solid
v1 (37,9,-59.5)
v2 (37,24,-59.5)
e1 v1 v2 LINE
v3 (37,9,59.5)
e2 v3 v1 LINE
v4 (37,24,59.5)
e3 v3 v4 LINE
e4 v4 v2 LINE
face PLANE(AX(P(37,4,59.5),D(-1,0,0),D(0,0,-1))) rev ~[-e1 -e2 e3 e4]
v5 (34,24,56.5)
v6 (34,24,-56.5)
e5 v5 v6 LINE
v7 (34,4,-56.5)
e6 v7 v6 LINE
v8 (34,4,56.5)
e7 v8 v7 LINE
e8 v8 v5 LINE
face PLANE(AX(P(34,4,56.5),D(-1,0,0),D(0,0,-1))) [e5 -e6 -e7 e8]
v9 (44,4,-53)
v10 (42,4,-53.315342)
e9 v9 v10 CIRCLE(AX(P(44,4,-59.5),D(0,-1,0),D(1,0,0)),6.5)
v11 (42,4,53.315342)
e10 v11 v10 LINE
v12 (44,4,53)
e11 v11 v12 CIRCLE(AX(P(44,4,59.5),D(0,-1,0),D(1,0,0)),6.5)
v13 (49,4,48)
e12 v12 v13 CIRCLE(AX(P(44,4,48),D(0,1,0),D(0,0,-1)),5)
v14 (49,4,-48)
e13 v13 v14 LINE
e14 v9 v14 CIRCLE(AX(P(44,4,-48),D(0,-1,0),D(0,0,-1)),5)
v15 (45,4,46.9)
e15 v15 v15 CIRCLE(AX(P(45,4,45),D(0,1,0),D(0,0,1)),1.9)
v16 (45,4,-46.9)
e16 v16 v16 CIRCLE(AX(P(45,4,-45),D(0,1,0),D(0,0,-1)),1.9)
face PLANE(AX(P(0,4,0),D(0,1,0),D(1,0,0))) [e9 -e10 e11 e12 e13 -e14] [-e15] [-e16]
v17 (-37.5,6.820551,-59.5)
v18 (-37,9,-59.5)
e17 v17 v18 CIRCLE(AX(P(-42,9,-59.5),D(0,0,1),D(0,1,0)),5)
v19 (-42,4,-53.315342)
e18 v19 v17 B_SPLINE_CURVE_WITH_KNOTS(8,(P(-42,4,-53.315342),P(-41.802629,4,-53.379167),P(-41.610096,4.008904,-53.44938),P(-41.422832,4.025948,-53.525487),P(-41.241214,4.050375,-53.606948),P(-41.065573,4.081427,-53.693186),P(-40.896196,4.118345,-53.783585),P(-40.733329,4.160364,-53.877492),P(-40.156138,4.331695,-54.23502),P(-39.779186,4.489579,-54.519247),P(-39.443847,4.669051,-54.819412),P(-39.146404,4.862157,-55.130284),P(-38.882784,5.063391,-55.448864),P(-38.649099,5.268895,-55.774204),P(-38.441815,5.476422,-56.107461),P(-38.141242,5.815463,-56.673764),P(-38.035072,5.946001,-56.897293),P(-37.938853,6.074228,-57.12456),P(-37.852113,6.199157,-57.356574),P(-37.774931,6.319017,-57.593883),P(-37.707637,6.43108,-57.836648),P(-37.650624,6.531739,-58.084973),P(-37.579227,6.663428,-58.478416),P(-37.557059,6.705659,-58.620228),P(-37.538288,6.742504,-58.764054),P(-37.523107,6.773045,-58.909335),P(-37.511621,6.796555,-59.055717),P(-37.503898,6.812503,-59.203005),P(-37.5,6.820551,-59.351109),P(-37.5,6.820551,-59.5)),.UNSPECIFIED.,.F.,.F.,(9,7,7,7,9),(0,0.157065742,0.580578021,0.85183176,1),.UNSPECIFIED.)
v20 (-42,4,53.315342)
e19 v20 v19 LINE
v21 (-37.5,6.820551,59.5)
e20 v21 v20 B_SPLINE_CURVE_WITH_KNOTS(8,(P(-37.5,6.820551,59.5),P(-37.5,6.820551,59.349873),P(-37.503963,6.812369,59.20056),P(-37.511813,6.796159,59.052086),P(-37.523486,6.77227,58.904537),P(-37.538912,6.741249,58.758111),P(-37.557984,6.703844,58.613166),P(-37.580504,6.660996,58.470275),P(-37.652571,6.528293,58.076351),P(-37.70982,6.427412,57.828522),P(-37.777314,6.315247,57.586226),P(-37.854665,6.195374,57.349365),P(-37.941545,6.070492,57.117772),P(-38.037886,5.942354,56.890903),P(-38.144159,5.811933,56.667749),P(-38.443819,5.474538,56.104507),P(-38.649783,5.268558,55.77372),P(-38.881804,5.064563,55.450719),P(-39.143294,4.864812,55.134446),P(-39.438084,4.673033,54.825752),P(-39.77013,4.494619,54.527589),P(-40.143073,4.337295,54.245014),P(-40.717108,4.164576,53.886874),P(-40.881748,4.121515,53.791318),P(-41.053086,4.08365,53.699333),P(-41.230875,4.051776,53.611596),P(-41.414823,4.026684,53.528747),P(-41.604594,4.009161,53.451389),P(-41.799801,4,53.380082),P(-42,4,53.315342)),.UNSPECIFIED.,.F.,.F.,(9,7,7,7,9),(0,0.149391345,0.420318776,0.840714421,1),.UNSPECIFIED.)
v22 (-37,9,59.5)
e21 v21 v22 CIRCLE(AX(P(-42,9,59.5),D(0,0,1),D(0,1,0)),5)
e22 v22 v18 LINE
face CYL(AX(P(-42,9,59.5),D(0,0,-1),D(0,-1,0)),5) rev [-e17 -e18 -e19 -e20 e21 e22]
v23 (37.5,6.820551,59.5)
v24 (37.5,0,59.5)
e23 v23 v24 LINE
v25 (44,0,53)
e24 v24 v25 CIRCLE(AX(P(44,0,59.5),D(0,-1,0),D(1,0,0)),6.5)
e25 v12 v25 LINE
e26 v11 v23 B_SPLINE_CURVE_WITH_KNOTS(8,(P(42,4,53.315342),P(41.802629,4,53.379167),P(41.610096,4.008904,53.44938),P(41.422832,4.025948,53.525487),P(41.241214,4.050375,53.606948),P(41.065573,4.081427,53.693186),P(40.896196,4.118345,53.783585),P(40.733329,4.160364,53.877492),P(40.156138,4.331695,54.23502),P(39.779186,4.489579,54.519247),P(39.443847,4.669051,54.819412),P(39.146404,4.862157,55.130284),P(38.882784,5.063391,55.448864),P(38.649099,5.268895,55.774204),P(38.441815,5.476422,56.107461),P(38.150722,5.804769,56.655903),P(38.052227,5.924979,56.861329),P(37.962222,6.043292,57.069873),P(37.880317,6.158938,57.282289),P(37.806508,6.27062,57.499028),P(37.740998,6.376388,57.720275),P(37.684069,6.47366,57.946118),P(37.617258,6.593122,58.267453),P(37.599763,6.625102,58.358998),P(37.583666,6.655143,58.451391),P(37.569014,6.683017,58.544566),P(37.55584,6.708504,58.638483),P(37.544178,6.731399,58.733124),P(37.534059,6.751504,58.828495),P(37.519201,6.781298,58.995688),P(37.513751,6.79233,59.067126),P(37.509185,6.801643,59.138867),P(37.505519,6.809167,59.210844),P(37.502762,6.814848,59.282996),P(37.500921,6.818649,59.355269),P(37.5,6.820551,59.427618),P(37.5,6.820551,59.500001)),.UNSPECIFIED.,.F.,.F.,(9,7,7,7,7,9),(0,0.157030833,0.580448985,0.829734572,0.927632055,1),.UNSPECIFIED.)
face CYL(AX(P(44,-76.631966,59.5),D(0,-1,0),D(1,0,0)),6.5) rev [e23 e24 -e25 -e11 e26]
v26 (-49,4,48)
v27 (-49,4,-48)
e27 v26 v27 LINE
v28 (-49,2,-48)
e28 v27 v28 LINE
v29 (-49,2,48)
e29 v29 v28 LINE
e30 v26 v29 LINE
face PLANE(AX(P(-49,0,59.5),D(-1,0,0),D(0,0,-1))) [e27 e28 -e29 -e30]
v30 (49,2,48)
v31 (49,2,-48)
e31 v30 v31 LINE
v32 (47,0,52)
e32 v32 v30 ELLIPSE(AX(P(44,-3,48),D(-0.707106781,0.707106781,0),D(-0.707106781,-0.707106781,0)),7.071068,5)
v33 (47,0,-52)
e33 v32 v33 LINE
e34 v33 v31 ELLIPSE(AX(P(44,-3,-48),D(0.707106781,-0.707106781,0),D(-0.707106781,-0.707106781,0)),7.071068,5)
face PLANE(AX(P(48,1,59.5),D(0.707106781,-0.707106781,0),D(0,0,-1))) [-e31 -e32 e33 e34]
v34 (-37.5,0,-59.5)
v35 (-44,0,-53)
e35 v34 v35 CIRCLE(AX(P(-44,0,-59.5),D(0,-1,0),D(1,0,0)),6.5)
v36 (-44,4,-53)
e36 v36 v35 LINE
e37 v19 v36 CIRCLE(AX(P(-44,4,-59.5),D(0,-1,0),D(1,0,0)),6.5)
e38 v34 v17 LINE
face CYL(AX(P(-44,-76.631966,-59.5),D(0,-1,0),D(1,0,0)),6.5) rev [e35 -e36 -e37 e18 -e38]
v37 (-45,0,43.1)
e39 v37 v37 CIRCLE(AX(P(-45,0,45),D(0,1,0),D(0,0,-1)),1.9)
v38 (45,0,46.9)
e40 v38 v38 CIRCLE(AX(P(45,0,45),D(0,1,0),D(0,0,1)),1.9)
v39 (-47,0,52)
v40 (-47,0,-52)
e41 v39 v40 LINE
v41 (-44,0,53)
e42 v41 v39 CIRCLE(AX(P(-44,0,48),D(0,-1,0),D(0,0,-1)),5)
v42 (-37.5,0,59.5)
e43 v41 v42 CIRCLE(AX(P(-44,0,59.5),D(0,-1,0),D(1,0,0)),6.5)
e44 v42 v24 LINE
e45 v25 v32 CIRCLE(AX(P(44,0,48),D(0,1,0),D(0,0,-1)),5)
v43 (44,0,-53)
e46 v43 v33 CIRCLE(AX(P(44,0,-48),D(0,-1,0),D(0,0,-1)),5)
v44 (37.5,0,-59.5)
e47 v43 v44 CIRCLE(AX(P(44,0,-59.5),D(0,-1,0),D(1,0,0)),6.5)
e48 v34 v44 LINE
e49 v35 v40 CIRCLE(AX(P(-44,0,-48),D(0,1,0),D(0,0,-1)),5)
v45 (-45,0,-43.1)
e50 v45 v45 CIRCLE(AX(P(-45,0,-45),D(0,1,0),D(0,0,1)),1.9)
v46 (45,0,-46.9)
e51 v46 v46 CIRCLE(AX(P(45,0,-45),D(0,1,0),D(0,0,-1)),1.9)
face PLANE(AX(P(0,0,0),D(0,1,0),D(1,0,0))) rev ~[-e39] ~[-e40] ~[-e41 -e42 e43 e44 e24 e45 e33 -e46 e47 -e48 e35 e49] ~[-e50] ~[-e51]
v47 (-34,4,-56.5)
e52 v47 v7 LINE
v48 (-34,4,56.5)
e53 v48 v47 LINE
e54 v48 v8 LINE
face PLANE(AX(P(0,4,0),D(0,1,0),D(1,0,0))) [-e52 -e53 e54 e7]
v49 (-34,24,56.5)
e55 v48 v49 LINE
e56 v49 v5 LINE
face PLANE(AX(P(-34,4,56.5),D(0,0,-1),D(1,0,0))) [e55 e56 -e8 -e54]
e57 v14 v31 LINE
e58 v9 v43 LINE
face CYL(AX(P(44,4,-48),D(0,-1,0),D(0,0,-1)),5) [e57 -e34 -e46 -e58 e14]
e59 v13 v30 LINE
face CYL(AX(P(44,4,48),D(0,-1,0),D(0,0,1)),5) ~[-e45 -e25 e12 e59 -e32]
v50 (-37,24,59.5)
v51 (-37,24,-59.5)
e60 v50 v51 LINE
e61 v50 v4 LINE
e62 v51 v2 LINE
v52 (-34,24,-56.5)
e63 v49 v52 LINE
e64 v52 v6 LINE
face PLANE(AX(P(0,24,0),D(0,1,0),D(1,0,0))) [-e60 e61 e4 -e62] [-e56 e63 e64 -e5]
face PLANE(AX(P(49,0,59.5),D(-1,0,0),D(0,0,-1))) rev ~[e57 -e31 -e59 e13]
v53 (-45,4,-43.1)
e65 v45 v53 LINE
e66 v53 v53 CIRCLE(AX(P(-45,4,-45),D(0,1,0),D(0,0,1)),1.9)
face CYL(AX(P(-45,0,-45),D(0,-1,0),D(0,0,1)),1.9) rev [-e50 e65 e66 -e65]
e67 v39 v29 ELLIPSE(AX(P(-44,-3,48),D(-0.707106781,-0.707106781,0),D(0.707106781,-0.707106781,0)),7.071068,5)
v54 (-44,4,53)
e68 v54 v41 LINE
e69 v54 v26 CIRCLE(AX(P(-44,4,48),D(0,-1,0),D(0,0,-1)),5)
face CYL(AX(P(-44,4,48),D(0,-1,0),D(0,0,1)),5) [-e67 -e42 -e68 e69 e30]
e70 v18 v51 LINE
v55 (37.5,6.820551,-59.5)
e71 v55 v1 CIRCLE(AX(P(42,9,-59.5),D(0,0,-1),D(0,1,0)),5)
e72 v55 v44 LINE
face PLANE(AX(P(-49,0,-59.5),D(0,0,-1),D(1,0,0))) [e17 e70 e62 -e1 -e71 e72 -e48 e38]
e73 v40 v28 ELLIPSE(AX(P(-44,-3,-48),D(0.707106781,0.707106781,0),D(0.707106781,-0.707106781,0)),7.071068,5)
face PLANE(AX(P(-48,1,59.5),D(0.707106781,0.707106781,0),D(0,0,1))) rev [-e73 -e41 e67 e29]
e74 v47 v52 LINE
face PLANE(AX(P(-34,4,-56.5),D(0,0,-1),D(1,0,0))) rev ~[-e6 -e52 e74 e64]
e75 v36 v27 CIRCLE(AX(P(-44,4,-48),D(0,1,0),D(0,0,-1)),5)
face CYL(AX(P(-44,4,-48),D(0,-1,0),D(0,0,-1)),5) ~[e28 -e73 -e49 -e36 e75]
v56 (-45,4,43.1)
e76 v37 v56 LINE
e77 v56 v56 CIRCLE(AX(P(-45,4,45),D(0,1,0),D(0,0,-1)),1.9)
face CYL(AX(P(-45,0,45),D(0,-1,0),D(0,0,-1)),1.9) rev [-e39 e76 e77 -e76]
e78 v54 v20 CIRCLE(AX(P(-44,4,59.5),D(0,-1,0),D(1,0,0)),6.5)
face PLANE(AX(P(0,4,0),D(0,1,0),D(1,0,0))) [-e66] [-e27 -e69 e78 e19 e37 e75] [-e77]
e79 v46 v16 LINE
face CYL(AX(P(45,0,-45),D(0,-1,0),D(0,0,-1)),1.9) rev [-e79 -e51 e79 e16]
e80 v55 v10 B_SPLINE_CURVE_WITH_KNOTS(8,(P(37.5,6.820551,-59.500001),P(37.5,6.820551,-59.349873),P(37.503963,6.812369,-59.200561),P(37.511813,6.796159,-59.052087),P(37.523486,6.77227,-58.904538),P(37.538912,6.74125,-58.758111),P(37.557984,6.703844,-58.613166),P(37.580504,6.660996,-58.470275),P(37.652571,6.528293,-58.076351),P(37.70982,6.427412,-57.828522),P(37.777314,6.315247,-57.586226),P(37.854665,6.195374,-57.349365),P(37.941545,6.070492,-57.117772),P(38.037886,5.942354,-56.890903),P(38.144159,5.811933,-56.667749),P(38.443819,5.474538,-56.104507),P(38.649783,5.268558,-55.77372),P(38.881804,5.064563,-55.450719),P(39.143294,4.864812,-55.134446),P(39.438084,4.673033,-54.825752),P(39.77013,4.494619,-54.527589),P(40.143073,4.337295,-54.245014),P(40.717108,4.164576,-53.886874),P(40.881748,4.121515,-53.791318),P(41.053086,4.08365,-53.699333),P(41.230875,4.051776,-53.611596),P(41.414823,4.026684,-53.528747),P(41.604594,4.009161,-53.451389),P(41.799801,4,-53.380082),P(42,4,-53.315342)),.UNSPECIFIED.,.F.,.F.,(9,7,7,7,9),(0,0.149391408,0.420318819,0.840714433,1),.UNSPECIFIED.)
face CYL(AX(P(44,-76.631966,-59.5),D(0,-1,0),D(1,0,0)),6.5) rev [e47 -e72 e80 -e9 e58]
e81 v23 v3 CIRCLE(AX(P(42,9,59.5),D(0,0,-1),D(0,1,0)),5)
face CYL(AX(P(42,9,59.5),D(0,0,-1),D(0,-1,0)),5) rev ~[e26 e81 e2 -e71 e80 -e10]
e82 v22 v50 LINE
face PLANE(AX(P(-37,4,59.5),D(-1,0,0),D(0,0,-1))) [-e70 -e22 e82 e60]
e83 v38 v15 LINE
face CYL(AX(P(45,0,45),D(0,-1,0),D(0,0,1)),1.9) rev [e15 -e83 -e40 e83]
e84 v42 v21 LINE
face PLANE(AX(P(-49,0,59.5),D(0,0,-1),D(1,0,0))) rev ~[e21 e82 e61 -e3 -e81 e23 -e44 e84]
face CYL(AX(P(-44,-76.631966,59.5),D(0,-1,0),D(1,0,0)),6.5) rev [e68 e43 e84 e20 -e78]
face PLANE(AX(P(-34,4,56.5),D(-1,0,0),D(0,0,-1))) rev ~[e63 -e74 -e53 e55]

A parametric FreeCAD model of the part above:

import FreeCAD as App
import Part
import Sketcher
from FreeCAD import Vector
Q = App.Units.Quantity


def edges_at(feature, points):
    """Names of the edges that pass closest to the given points."""
    edges = feature.Shape.Edges
    near = lambda p: min(range(len(edges)), key=lambda i: edges[i].distToShape(Part.Vertex(*p))[0])
    return sorted({f"Edge{near(p) + 1}" for p in points})


def add_polygon(sketch, points):
    """Adds a closed chain of lines whose ends are joined by coincident constraints."""
    first, n = sketch.GeometryCount, len(points)
    for a, b in zip(points, points[1:] + points[:1]):
        sketch.addGeometry(Part.LineSegment(App.Vector(*a, 0), App.Vector(*b, 0)), False)
    for i in range(n):
        sketch.addConstraint(Sketcher.Constraint("Coincident", first + i, 2, first + (i + 1) % n, 1))

doc = App.newDocument("Part")
params = doc.addObject("Spreadsheet::Sheet", "Params")
for row, (alias, value) in enumerate([
    ("sketch1_diameter", "3.8 mm"),
    ("sketch1_width", "98 mm"),
    ("sketch1_height", "119 mm"),
    ("pad1_length", "4 mm"),
    ("sketch2_width", "74 mm"),
    ("sketch2_width2", "68 mm"),
    ("sketch2_height", "119 mm"),
    ("sketch2_height2", "113 mm"),
    ("pad2_length", "20 mm"),
    ("fillet_radius", "5 mm"),
    ("chamfer_size", "2 mm"),
    ("sketch3_diameter", "13 mm"),
    ("fillet2_radius", "5 mm"),
], start=1):
    params.set(f"A{row}", alias)
    params.set(f"B{row}", "=" + value)
    params.setAlias(f"B{row}", alias)

body = doc.addObject("PartDesign::Body", "Body")

sketch1 = body.newObject("Sketcher::SketchObject", "Sketch")
sketch1.AttachmentSupport = (doc.getObject("XZ_Plane"), [""])
sketch1.MapMode = "FlatFace"
add_polygon(sketch1, [(-49, -59.5), (-49, 59.5), (49, 59.5), (49, -59.5)])
sketch1.addGeometry(Part.Circle(Vector(-45, 45, 0), Vector(0, 0, 1), 1.9), False)
sketch1.addGeometry(Part.Circle(Vector(45, 45, 0), Vector(0, 0, 1), 1.9), False)
sketch1.addGeometry(Part.Circle(Vector(-45, -45, 0), Vector(0, 0, 1), 1.9), False)
sketch1.addGeometry(Part.Circle(Vector(45, -45, 0), Vector(0, 0, 1), 1.9), False)
sketch1.addConstraint([
    Sketcher.Constraint("Vertical", 0),
    Sketcher.Constraint("Horizontal", 1),
    Sketcher.Constraint("Vertical", 2),
    Sketcher.Constraint("Horizontal", 3),
    Sketcher.Constraint("Equal", 4, 5),
    Sketcher.Constraint("Equal", 5, 6),
    Sketcher.Constraint("Equal", 6, 7),
    Sketcher.Constraint("Symmetric", 5, 3, 6, 3, -1, 1),
    Sketcher.Constraint("Symmetric", 4, 3, 7, 3, -1, 1),
    Sketcher.Constraint("Symmetric", 0, 2, 2, 2, -1, 1),
    Sketcher.Constraint("Symmetric", 4, 3, 5, 3, -2),
    Sketcher.Constraint("Diameter", 4, Q("3.8 mm")),
    Sketcher.Constraint("DistanceX", 1, 1, 1, 2, Q("98 mm")),
    Sketcher.Constraint("DistanceY", 0, 1, 0, 2, Q("119 mm")),
    Sketcher.Constraint("DistanceX", 4, 3, -1, 1, Q("45 mm")),
    Sketcher.Constraint("DistanceY", -1, 1, 4, 3, Q("45 mm")),
])
sketch1.setExpression("Constraints[15]", "Params.sketch1_diameter")
sketch1.setExpression("Constraints[16]", "Params.sketch1_width")
sketch1.setExpression("Constraints[17]", "Params.sketch1_height")
pad1 = body.newObject("PartDesign::Pad", "Pad")
pad1.Profile = sketch1
pad1.setExpression("Length", "Params.pad1_length")
pad1.Reversed = True

sketch2 = body.newObject("Sketcher::SketchObject", "Sketch001")
sketch2.AttachmentSupport = (doc.getObject("XZ_Plane"), [""])
sketch2.MapMode = "FlatFace"
sketch2.AttachmentOffset = App.Placement(Vector(0, 0, -4), App.Rotation())
add_polygon(sketch2, [(-37, -60), (-37, 60), (37, 60), (37, -60)])
add_polygon(sketch2, [(34, 56), (-34, 56), (-34, -56), (34, -56)])
sketch2.addConstraint([
    Sketcher.Constraint("Vertical", 0),
    Sketcher.Constraint("Horizontal", 1),
    Sketcher.Constraint("Vertical", 2),
    Sketcher.Constraint("Horizontal", 3),
    Sketcher.Constraint("Horizontal", 4),
    Sketcher.Constraint("Vertical", 5),
    Sketcher.Constraint("Horizontal", 6),
    Sketcher.Constraint("Vertical", 7),
    Sketcher.Constraint("Symmetric", 0, 2, 2, 2, -1, 1),
    Sketcher.Constraint("Symmetric", 4, 2, 6, 2, -1, 1),
    Sketcher.Constraint("DistanceX", 1, 1, 1, 2, Q("74 mm")),
    Sketcher.Constraint("DistanceX", 4, 2, 4, 1, Q("68 mm")),
    Sketcher.Constraint("DistanceY", 0, 1, 0, 2, Q("119 mm")),
    Sketcher.Constraint("DistanceY", 5, 2, 5, 1, Q("113 mm")),
])
sketch2.setExpression("Constraints[18]", "Params.sketch2_width")
sketch2.setExpression("Constraints[19]", "Params.sketch2_width2")
sketch2.setExpression("Constraints[20]", "Params.sketch2_height")
sketch2.setExpression("Constraints[21]", "Params.sketch2_height2")
pad2 = body.newObject("PartDesign::Pad", "Pad001")
pad2.Profile = sketch2
pad2.setExpression("Length", "Params.pad2_length")
pad2.Reversed = True
doc.recompute()

fillet = body.newObject("PartDesign::Fillet", "Fillet")
fillet.Base = (pad2, edges_at(pad2, [(37, 4, 0), (-37, 4, 0)]))
fillet.setExpression("Radius", "Params.fillet_radius")
doc.recompute()

chamfer = body.newObject("PartDesign::Chamfer", "Chamfer")
chamfer.Base = (fillet, edges_at(fillet, [(-49, 0, 0), (49, 0, 0)]))
chamfer.setExpression("Size", "Params.chamfer_size")

sketch3 = body.newObject("Sketcher::SketchObject", "Sketch002")
sketch3.AttachmentSupport = (doc.getObject("XZ_Plane"), [""])
sketch3.MapMode = "FlatFace"
sketch3.AttachmentOffset = App.Placement(Vector(0, 0, -4), App.Rotation())
sketch3.addGeometry([
    Part.Circle(Vector(44, -60, 0), Vector(0, 0, 1), 6),
    Part.Circle(Vector(-44, -60, 0), Vector(0, 0, 1), 6),
    Part.Circle(Vector(44, 60, 0), Vector(0, 0, 1), 6),
    Part.Circle(Vector(-44, 60, 0), Vector(0, 0, 1), 6),
], False)
sketch3.addConstraint([
    Sketcher.Constraint("Equal", 0, 1),
    Sketcher.Constraint("Equal", 1, 2),
    Sketcher.Constraint("Equal", 2, 3),
    Sketcher.Constraint("Symmetric", 1, 3, 2, 3, -1, 1),
    Sketcher.Constraint("Symmetric", 0, 3, 3, 3, -1, 1),
    Sketcher.Constraint("Symmetric", 0, 3, 1, 3, -2),
    Sketcher.Constraint("Diameter", 0, Q("13 mm")),
    Sketcher.Constraint("DistanceX", -1, 1, 0, 3, Q("44 mm")),
    Sketcher.Constraint("DistanceY", 0, 3, 2, 3, Q("119 mm")),
])
sketch3.setExpression("Constraints[6]", "Params.sketch3_diameter")
pocket1 = body.newObject("PartDesign::Pocket", "Pocket")
pocket1.Profile = sketch3
pocket1.Type = "ThroughAll"
pocket1.Midplane = True
doc.recompute()

fillet2 = body.newObject("PartDesign::Fillet", "Fillet001")
fillet2.Base = (pocket1, edges_at(pocket1, [
    (-49, 3, 55.347),
    (49, 3, 55.347),
    (-49, 3, -55.347),
    (49, 3, -55.347),
]))
fillet2.setExpression("Radius", "Params.fillet2_radius")

doc.recompute()
